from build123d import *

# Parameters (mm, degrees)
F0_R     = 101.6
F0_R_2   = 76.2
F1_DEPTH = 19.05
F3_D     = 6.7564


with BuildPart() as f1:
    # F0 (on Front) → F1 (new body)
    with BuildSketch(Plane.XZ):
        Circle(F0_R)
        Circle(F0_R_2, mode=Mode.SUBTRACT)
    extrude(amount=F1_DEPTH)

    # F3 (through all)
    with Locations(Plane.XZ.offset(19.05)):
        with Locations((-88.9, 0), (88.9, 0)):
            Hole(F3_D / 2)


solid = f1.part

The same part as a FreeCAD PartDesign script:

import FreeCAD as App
import Part
import Sketcher

V = App.Vector
Q = App.Units.Quantity

doc = App.newDocument("Part")
body = doc.addObject("PartDesign::Body", "Body")

# Sketch on XZ plane
sketch1 = body.newObject("Sketcher::SketchObject", "Sketch")
sketch1.AttachmentSupport = (doc.getObject("XZ_Plane"), [""])
sketch1.MapMode = "FlatFace"
sketch1.addGeometry([
    Part.Circle(V(0, 0, 0), V(0, 0, 1), 102),
    Part.Circle(V(0, 0, 0), V(0, 0, 1), 76),
], False)
sketch1.addConstraint([
    Sketcher.Constraint("Coincident", 0, 3, -1, 1),
    Sketcher.Constraint("Coincident", 1, 3, -1, 1),
    Sketcher.Constraint("Diameter", 0, Q("8 in")),
    Sketcher.Constraint("Diameter", 1, Q("6 in")),
])
pad1 = body.newObject("PartDesign::Pad", "Pad")
pad1.Profile = sketch1
pad1.Length = Q("0.75 in")

# Sketch on XZ plane
sketch2 = body.newObject("Sketcher::SketchObject", "Sketch001")
sketch2.AttachmentSupport = (doc.getObject("XZ_Plane"), [""])
sketch2.MapMode = "FlatFace"
sketch2.AttachmentOffset = App.Placement(V(0, 0, 0.75 * 25.4), App.Rotation())
sketch2.addGeometry([
    Part.Circle(V(-88.9, 0, 0), V(0, 0, 1), 3.4),
    Part.Circle(V(88.9, 0, 0), V(0, 0, 1), 3.4),
], False)
sketch2.addConstraint([
    Sketcher.Constraint("Equal", 0, 1),
    Sketcher.Constraint("Symmetric", 0, 3, 1, 3, -1, 1),
    Sketcher.Constraint("PointOnObject", 0, 3, -1),
    Sketcher.Constraint("Diameter", 0, Q("0.266 in")),
    Sketcher.Constraint("DistanceX", 0, 3, 1, 3, Q("7 in")),
])
doc.recompute()
hole = body.newObject("PartDesign::Hole", "Hole")
hole.Profile = sketch2
hole.ThreadType = "None"
hole.Diameter = Q("0.266 in")
hole.DepthType = "ThroughAll"

doc.recompute()
